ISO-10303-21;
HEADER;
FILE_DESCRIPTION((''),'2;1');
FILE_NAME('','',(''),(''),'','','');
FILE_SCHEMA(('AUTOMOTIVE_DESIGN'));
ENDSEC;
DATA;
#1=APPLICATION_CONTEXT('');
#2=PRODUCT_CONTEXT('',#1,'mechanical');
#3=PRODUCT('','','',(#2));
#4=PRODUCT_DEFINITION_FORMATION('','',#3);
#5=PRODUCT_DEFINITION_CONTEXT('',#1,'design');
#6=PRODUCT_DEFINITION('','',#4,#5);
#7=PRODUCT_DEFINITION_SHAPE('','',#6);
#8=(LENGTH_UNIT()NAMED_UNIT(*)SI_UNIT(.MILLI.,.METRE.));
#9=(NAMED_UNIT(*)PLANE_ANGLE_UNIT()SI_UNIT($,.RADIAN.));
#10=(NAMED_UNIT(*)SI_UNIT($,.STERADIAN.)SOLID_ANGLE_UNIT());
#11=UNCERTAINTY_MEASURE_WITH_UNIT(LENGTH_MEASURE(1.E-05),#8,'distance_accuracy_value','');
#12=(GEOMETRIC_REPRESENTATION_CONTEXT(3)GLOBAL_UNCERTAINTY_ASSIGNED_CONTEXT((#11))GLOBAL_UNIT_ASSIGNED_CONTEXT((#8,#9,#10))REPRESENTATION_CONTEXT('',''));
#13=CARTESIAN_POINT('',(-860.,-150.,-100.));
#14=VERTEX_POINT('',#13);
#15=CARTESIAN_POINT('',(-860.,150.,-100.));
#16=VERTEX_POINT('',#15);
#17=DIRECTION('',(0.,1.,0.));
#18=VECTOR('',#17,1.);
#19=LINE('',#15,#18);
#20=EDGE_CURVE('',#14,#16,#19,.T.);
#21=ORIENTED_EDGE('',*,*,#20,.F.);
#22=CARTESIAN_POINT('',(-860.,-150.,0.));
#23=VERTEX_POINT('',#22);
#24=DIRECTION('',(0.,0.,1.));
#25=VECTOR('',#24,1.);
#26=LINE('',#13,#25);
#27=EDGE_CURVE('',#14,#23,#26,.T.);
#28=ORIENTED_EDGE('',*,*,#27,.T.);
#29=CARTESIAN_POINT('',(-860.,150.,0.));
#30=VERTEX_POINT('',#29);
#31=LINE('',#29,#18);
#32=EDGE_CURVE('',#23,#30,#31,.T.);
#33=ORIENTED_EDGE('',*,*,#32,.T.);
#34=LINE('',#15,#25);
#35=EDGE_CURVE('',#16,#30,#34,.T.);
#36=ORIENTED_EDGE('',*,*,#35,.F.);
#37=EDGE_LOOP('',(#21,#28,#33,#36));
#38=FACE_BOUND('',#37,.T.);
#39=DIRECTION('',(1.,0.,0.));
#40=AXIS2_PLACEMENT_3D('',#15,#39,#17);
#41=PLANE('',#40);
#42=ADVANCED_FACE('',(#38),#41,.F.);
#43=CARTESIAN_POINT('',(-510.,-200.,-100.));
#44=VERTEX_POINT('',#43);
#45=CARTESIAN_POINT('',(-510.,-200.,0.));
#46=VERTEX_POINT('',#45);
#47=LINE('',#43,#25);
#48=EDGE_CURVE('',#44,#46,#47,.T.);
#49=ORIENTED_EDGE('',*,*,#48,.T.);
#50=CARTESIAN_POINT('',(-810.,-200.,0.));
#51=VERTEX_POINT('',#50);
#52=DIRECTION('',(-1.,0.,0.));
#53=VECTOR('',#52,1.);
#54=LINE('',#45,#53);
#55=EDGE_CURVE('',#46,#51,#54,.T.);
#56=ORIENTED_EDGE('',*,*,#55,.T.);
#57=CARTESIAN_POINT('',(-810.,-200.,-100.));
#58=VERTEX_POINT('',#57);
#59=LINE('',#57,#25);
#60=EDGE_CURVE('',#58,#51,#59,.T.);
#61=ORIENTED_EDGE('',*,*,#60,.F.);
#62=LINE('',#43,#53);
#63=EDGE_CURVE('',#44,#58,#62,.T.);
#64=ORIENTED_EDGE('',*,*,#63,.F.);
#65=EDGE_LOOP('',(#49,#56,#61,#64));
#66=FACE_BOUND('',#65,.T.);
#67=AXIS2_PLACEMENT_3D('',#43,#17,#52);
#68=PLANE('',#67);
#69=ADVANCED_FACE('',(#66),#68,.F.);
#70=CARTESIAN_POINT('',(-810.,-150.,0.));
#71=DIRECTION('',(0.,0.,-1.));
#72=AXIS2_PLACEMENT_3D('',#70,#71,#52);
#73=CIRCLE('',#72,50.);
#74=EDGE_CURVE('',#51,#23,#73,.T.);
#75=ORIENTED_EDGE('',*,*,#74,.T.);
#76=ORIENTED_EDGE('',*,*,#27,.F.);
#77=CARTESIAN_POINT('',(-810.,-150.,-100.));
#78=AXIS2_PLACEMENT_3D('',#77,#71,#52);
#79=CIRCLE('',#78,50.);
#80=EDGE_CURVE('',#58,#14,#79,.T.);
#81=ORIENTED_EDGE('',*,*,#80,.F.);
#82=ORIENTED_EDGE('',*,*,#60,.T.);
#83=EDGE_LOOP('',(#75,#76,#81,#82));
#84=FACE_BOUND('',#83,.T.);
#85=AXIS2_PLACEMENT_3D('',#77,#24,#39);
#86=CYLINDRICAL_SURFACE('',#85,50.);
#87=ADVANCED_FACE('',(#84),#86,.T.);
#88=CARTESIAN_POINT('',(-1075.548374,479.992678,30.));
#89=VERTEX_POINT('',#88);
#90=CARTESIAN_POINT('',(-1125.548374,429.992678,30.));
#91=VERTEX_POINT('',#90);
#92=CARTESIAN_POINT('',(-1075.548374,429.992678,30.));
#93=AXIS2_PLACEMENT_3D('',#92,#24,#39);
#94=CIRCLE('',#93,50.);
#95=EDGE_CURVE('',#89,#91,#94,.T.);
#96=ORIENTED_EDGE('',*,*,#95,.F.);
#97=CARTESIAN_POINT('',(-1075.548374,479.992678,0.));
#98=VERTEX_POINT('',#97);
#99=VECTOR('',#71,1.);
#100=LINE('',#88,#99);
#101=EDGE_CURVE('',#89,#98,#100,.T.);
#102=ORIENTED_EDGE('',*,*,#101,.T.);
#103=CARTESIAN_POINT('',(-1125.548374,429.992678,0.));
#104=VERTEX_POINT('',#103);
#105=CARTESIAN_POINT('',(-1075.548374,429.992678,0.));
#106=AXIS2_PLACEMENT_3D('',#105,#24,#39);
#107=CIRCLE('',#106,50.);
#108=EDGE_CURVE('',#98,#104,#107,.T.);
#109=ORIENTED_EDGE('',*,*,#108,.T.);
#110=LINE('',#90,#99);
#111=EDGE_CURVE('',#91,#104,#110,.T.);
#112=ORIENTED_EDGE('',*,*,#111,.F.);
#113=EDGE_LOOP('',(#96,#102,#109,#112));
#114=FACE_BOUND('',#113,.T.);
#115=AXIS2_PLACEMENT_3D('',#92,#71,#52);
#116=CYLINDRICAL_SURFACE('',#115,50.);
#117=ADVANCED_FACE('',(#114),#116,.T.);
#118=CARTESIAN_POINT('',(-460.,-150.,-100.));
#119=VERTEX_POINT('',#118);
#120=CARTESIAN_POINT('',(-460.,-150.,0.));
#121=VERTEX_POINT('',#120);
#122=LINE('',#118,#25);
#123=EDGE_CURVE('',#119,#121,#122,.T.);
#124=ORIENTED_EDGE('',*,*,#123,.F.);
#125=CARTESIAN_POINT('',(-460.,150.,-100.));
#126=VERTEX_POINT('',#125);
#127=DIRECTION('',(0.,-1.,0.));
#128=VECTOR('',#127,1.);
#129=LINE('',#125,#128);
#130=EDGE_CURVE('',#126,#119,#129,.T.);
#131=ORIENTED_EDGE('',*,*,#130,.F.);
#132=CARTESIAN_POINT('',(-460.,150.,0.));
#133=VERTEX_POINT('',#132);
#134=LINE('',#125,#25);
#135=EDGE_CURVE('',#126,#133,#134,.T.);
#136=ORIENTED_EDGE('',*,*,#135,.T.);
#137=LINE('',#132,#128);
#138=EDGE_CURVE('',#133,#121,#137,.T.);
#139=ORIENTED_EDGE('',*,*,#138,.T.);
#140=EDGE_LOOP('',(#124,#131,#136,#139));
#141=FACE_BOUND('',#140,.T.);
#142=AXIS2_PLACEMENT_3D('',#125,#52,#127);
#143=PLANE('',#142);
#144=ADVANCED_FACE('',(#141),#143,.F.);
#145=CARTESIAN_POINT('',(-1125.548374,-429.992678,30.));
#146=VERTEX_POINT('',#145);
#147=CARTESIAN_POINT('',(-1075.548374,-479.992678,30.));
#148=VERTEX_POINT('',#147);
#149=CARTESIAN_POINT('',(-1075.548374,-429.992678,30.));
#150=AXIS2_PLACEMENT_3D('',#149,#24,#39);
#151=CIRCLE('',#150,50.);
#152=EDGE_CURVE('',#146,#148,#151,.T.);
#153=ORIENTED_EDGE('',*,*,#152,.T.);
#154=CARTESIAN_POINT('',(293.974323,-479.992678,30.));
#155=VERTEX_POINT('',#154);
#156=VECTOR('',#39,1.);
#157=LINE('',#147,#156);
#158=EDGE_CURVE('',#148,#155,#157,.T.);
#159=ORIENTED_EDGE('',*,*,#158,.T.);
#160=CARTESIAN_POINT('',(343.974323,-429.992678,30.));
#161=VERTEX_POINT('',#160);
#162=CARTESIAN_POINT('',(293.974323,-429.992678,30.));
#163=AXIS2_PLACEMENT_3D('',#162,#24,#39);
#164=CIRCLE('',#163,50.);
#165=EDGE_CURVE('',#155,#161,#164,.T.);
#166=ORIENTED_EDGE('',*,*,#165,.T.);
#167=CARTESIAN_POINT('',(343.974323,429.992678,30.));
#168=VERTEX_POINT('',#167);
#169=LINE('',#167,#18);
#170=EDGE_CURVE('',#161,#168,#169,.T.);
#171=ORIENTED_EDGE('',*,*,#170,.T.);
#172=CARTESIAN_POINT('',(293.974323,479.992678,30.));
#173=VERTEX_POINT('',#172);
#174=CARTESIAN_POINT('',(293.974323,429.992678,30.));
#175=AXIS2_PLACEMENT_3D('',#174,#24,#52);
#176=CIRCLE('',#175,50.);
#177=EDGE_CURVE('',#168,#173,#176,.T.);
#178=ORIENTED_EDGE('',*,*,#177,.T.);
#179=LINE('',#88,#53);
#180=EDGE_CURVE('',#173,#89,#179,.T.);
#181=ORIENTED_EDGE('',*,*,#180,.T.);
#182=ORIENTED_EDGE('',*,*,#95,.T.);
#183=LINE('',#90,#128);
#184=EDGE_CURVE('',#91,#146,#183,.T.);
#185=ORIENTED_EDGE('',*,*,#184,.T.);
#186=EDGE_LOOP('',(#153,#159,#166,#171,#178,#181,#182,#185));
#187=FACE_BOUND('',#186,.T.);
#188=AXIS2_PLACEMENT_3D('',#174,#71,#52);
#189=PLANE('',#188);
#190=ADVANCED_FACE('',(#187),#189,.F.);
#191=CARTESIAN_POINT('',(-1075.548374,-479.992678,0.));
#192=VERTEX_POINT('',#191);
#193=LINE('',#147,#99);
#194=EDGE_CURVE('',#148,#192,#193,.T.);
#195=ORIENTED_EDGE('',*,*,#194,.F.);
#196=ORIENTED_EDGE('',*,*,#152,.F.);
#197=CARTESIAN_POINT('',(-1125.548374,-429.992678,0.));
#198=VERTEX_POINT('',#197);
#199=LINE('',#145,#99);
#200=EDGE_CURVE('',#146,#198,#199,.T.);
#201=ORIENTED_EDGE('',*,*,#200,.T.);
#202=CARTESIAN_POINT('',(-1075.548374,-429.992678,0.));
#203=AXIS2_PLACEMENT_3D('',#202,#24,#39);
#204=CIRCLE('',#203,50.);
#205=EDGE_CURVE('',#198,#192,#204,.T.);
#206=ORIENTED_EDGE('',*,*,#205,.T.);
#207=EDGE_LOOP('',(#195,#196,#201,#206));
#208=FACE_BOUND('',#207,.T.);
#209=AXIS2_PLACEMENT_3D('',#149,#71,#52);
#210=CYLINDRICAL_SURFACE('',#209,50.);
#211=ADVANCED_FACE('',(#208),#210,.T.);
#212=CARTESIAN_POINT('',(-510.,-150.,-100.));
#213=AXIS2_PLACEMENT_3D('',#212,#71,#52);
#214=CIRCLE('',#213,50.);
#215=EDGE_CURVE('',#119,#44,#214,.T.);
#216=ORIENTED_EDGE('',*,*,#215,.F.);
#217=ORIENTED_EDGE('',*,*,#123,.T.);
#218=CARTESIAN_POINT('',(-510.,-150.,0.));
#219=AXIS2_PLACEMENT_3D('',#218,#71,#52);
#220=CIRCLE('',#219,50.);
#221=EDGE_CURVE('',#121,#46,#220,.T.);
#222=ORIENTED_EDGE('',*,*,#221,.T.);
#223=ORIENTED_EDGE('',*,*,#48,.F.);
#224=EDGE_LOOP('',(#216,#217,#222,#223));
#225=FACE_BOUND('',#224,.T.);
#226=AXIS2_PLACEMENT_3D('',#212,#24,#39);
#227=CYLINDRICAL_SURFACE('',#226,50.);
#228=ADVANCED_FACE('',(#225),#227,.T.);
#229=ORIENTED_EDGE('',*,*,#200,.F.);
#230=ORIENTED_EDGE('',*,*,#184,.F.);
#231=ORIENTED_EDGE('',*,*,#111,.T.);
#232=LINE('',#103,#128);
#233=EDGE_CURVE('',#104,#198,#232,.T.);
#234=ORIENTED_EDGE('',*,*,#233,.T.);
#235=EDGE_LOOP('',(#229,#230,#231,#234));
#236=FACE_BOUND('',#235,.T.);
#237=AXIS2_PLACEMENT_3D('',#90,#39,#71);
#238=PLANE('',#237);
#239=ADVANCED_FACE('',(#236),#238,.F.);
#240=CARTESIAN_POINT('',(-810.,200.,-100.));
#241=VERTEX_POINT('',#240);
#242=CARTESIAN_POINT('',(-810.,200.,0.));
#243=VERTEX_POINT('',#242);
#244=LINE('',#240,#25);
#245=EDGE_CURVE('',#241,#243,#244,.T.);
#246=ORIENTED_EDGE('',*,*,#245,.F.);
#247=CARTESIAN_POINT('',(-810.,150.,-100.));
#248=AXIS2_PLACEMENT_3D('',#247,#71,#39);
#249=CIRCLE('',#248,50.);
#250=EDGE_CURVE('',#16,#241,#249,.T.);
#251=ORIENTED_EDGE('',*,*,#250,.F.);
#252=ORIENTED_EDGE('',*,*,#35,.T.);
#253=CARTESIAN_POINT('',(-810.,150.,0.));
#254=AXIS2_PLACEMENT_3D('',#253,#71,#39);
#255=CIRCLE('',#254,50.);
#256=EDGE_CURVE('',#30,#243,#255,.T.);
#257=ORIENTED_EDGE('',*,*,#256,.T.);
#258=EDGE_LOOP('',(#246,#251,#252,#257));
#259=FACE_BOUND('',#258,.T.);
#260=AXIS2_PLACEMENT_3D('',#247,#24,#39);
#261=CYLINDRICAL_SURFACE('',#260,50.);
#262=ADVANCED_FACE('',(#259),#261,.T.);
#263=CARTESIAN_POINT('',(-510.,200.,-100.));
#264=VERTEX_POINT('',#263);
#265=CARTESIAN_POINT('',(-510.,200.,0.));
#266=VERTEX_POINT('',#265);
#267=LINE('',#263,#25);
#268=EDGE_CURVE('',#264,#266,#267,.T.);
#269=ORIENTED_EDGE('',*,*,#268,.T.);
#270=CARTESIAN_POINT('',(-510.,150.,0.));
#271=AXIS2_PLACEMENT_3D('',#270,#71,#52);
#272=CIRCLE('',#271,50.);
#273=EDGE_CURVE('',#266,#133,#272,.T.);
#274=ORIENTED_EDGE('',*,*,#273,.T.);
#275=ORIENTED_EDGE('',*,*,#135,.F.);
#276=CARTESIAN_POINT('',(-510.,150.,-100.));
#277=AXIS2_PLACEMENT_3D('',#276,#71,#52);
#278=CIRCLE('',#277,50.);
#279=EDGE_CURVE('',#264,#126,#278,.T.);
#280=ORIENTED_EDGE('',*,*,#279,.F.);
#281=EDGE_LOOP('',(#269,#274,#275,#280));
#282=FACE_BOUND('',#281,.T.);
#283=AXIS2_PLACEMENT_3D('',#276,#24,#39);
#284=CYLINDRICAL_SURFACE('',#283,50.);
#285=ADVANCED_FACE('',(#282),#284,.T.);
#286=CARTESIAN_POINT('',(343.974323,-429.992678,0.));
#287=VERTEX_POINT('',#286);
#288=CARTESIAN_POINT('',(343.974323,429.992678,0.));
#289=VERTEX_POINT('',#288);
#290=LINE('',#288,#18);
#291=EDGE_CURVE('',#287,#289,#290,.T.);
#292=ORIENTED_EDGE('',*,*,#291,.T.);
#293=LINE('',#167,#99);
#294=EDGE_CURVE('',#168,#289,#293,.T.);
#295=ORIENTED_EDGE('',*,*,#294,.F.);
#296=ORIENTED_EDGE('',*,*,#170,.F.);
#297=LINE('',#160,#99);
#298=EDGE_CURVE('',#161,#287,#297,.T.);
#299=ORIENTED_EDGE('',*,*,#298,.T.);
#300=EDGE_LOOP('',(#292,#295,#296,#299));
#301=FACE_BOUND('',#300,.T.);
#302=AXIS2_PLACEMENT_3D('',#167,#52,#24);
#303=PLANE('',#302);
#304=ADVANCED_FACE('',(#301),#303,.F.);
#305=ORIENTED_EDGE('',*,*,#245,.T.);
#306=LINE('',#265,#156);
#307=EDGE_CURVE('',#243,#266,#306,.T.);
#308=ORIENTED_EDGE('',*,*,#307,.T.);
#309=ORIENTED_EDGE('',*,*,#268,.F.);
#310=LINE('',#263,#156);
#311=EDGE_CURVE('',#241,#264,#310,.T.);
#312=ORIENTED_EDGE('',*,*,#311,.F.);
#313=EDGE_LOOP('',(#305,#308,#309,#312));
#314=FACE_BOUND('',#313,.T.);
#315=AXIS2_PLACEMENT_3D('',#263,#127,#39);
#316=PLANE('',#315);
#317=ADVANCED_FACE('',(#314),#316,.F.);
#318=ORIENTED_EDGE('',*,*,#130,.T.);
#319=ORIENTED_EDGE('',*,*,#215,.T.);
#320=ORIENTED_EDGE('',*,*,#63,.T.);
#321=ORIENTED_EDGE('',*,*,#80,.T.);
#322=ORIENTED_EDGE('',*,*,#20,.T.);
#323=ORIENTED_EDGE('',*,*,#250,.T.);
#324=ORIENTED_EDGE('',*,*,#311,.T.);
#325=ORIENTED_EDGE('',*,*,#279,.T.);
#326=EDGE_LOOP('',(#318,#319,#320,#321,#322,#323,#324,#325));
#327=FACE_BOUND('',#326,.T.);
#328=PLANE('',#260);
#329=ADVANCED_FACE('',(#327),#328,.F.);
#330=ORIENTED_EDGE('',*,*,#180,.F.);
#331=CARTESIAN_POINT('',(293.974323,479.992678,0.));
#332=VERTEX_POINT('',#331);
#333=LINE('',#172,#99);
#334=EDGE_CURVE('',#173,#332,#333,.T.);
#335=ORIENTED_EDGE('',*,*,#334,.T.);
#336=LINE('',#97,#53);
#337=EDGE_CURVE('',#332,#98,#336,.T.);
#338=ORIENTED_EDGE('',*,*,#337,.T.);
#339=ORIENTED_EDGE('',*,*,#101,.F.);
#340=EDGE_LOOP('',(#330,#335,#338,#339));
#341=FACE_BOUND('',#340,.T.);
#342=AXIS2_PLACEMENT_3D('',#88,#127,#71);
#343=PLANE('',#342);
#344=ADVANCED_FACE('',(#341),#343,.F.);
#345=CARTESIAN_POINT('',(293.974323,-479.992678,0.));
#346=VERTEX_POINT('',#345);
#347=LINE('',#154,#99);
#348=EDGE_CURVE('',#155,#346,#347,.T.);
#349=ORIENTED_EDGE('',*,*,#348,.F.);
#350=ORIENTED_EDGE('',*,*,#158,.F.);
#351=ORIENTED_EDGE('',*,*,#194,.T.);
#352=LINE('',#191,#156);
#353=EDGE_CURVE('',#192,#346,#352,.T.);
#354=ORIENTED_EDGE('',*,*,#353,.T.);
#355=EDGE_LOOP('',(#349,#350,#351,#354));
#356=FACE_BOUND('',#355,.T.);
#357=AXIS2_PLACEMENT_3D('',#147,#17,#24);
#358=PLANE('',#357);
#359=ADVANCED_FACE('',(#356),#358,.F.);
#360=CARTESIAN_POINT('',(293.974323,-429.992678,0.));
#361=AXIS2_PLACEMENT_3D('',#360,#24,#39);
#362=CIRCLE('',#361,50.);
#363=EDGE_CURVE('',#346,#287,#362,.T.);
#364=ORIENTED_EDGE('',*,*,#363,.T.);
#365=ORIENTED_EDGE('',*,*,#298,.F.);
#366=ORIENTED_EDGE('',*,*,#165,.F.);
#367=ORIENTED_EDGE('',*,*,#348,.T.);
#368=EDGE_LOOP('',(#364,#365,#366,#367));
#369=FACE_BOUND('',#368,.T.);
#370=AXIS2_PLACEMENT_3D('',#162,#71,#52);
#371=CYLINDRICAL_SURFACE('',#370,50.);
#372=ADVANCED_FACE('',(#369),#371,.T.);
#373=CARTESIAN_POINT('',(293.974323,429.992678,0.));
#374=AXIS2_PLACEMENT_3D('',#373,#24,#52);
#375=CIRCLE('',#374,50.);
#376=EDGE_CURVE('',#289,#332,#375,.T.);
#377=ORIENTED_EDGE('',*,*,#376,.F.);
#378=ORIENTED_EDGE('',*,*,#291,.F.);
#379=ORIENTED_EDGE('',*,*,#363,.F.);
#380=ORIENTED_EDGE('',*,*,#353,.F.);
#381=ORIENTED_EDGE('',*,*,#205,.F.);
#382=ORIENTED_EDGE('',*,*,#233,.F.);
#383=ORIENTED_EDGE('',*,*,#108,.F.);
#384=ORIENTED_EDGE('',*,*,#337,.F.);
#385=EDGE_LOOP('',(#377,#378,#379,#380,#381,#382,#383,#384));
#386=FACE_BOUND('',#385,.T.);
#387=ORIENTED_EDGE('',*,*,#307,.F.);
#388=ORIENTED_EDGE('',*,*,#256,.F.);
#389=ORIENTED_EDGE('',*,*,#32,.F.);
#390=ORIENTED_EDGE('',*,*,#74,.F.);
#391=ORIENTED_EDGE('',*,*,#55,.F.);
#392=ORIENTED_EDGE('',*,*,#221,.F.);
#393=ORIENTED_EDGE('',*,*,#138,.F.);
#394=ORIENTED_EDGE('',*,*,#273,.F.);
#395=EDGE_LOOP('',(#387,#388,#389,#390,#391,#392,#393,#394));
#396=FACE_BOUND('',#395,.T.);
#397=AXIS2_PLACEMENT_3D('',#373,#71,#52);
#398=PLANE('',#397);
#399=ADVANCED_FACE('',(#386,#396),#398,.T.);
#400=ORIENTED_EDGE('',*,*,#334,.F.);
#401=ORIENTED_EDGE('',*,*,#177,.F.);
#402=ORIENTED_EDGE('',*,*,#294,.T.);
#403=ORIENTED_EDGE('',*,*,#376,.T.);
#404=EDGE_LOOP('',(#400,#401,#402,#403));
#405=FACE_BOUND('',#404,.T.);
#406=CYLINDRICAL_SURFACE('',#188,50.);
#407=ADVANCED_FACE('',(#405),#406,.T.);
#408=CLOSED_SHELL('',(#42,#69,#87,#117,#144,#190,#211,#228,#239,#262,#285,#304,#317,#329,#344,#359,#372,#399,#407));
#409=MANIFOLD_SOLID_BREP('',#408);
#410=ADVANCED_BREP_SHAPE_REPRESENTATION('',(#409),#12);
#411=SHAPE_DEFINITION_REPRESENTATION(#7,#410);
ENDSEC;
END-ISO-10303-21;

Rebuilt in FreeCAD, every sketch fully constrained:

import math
import FreeCAD as App
import Part
import Sketcher

V = App.Vector
Q = App.Units.Quantity

doc = App.newDocument("Part")
params = doc.addObject("Spreadsheet::Sheet", "Params")
for row, (alias, value) in enumerate([
    ("sketch1_radius", "50 mm"),
    ("pad1_length", "30 mm"),
    ("sketch2_radius", "50 mm"),
    ("sketch2_width", "300 mm"),
    ("pad2_length", "100 mm"),
], start=1):
    params.set(f"A{row}", alias)
    params.set(f"B{row}", "=" + value)
    params.setAlias(f"B{row}", alias)

body = doc.addObject("PartDesign::Body", "Body")

# Sketch on XY plane
sketch1 = doc.addObject("Sketcher::SketchObject", "Sketch")
body.addObject(sketch1)
sketch1.AttachmentSupport = (doc.XY_Plane, [""])
sketch1.MapMode = "FlatFace"
sketch1.addGeometry(Part.LineSegment(V(293.974323, 479.992678, 0), V(-1075.548374, 479.992678, 0)), False)
sketch1.addGeometry(Part.ArcOfCircle(Part.Circle(V(-1075.548374, 429.992678, 0), V(0, 0, 1), 50), math.radians(90), math.radians(180)), False)
sketch1.addGeometry(Part.LineSegment(V(-1125.548374, 429.992678, 0), V(-1125.548374, -429.992678, 0)), False)
sketch1.addGeometry(Part.ArcOfCircle(Part.Circle(V(-1075.548374, -429.992678, 0), V(0, 0, 1), 50), math.radians(180), math.radians(270)), False)
sketch1.addGeometry(Part.LineSegment(V(-1075.548374, -479.992678, 0), V(293.974323, -479.992678, 0)), False)
sketch1.addGeometry(Part.ArcOfCircle(Part.Circle(V(293.974323, -429.992678, 0), V(0, 0, 1), 50), math.radians(-90), math.radians(0)), False)
sketch1.addGeometry(Part.LineSegment(V(343.974323, -429.992678, 0), V(343.974323, 429.992678, 0)), False)
sketch1.addGeometry(Part.ArcOfCircle(Part.Circle(V(293.974323, 429.992678, 0), V(0, 0, 1), 50), math.radians(0), math.radians(90)), False)
sketch1.addConstraint(Sketcher.Constraint("Tangent", 0, 2, 1, 1))
sketch1.addConstraint(Sketcher.Constraint("Tangent", 1, 2, 2, 1))
sketch1.addConstraint(Sketcher.Constraint("Tangent", 2, 2, 3, 1))
sketch1.addConstraint(Sketcher.Constraint("Tangent", 3, 2, 4, 1))
sketch1.addConstraint(Sketcher.Constraint("Tangent", 4, 2, 5, 1))
sketch1.addConstraint(Sketcher.Constraint("Tangent", 5, 2, 6, 1))
sketch1.addConstraint(Sketcher.Constraint("Tangent", 6, 2, 7, 1))
sketch1.addConstraint(Sketcher.Constraint("Tangent", 7, 2, 0, 1))
sketch1.addConstraint(Sketcher.Constraint("Horizontal", 0))
sketch1.addConstraint(Sketcher.Constraint("Vertical", 2))
sketch1.addConstraint(Sketcher.Constraint("Horizontal", 4))
sketch1.addConstraint(Sketcher.Constraint("Vertical", 6))
sketch1.addConstraint(Sketcher.Constraint("Equal", 1, 3))
sketch1.addConstraint(Sketcher.Constraint("Equal", 3, 5))
sketch1.addConstraint(Sketcher.Constraint("Equal", 5, 7))
sketch1.addConstraint(Sketcher.Constraint("Radius", 1, Q("50 mm")))
sketch1.addConstraint(Sketcher.Constraint("DistanceX", 0, 2, 0, 1, Q("1369.522696 mm")))
sketch1.addConstraint(Sketcher.Constraint("DistanceY", 2, 2, 2, 1, Q("859.985355 mm")))
sketch1.addConstraint(Sketcher.Constraint("DistanceX", 1, 3, -1, 1, Q("1075.548374 mm")))
sketch1.addConstraint(Sketcher.Constraint("DistanceY", -1, 1, 1, 3, Q("429.992678 mm")))
sketch1.setExpression("Constraints[15]", "Params.sketch1_radius")
pad1 = doc.addObject("PartDesign::Pad", "Pad")
body.addObject(pad1)
pad1.Profile = sketch1
pad1.setExpression("Length", "Params.pad1_length")

# Sketch on XY plane
sketch2 = doc.addObject("Sketcher::SketchObject", "Sketch001")
body.addObject(sketch2)
sketch2.AttachmentSupport = (doc.XY_Plane, [""])
sketch2.MapMode = "FlatFace"
sketch2.addGeometry(Part.LineSegment(V(-810, 200, 0), V(-510, 200, 0)), False)
sketch2.addGeometry(Part.ArcOfCircle(Part.Circle(V(-510, 150, 0), V(0, 0, 1), 50), math.radians(0), math.radians(90)), False)
sketch2.addGeometry(Part.LineSegment(V(-460, 150, 0), V(-460, -150, 0)), False)
sketch2.addGeometry(Part.ArcOfCircle(Part.Circle(V(-510, -150, 0), V(0, 0, 1), 50), math.radians(-90), math.radians(0)), False)
sketch2.addGeometry(Part.LineSegment(V(-510, -200, 0), V(-810, -200, 0)), False)
sketch2.addGeometry(Part.ArcOfCircle(Part.Circle(V(-810, -150, 0), V(0, 0, 1), 50), math.radians(-180), math.radians(-90)), False)
sketch2.addGeometry(Part.LineSegment(V(-860, -150, 0), V(-860, 150, 0)), False)
sketch2.addGeometry(Part.ArcOfCircle(Part.Circle(V(-810, 150, 0), V(0, 0, 1), 50), math.radians(90), math.radians(180)), False)
sketch2.addConstraint(Sketcher.Constraint("Tangent", 0, 2, 1, 2))
sketch2.addConstraint(Sketcher.Constraint("Tangent", 1, 1, 2, 1))
sketch2.addConstraint(Sketcher.Constraint("Tangent", 2, 2, 3, 2))
sketch2.addConstraint(Sketcher.Constraint("Tangent", 3, 1, 4, 1))
sketch2.addConstraint(Sketcher.Constraint("Tangent", 4, 2, 5, 2))
sketch2.addConstraint(Sketcher.Constraint("Tangent", 5, 1, 6, 1))
sketch2.addConstraint(Sketcher.Constraint("Tangent", 6, 2, 7, 2))
sketch2.addConstraint(Sketcher.Constraint("Tangent", 7, 1, 0, 1))
sketch2.addConstraint(Sketcher.Constraint("Horizontal", 0))
sketch2.addConstraint(Sketcher.Constraint("Vertical", 2))
sketch2.addConstraint(Sketcher.Constraint("Horizontal", 4))
sketch2.addConstraint(Sketcher.Constraint("Vertical", 6))
sketch2.addConstraint(Sketcher.Constraint("Equal", 1, 3))
sketch2.addConstraint(Sketcher.Constraint("Equal", 3, 5))
sketch2.addConstraint(Sketcher.Constraint("Equal", 5, 7))
sketch2.addConstraint(Sketcher.Constraint("Equal", 4, 2))
sketch2.addConstraint(Sketcher.Constraint("Radius", 1, Q("50 mm")))
sketch2.addConstraint(Sketcher.Constraint("DistanceX", 0, 1, 0, 2, Q("300 mm")))
sketch2.addConstraint(Sketcher.Constraint("DistanceX", 1, 3, -1, 1, Q("510 mm")))
sketch2.addConstraint(Sketcher.Constraint("DistanceY", -1, 1, 1, 3, Q("150 mm")))
sketch2.setExpression("Constraints[16]", "Params.sketch2_radius")
sketch2.setExpression("Constraints[17]", "Params.sketch2_width")
pad2 = doc.addObject("PartDesign::Pad", "Pad001")
body.addObject(pad2)
pad2.Profile = sketch2
pad2.setExpression("Length", "Params.pad2_length")
pad2.Reversed = True

doc.recompute()
